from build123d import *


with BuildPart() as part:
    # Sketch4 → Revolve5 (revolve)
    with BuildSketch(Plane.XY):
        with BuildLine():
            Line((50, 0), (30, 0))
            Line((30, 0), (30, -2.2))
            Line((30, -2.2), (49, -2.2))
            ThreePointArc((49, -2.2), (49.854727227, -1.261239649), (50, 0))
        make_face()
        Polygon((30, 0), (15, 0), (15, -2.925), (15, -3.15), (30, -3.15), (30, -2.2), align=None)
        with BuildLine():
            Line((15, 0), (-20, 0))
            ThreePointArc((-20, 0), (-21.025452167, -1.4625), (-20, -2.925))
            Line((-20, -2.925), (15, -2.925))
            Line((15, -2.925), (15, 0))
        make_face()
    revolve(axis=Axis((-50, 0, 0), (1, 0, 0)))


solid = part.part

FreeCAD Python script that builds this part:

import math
import FreeCAD as App
import Part
import Sketcher

doc = App.newDocument("Part")
body = doc.addObject("PartDesign::Body", "Body")

sketch1 = body.newObject("Sketcher::SketchObject", "Sketch")
sketch1.AttachmentSupport = (doc.getObject("XY_Plane"), [""])
sketch1.MapMode = "FlatFace"
sketch1.addGeometry([
    Part.LineSegment(App.Vector(50, 0, 0), App.Vector(-20, 0, 0)),
    Part.ArcOfCircle(Part.Circle(App.Vector(-19.47, -1.46, 0), App.Vector(0, 0, 1), 1.56), math.radians(110), math.radians(250)),
    Part.LineSegment(App.Vector(-20, -2.92, 0), App.Vector(15, -2.92, 0)),
    Part.LineSegment(App.Vector(15, -2.92, 0), App.Vector(15, -3.15, 0)),
    Part.LineSegment(App.Vector(15, -3.15, 0), App.Vector(30, -3.15, 0)),
    Part.LineSegment(App.Vector(30, -3.15, 0), App.Vector(30, -2.2, 0)),
    Part.LineSegment(App.Vector(30, -2.2, 0), App.Vector(49, -2.2, 0)),
    Part.ArcOfCircle(Part.Circle(App.Vector(47.97, -0.41, 0), App.Vector(0, 0, 1), 2.07), math.radians(-60), math.radians(11)),
], False)
sketch1.addConstraint([
    Sketcher.Constraint("Coincident", 0, 2, 1, 1),
    Sketcher.Constraint("Coincident", 1, 2, 2, 1),
    Sketcher.Constraint("Coincident", 2, 2, 3, 1),
    Sketcher.Constraint("Coincident", 3, 2, 4, 1),
    Sketcher.Constraint("Coincident", 4, 2, 5, 1),
    Sketcher.Constraint("Coincident", 5, 2, 6, 1),
    Sketcher.Constraint("Coincident", 6, 2, 7, 1),
    Sketcher.Constraint("Coincident", 7, 2, 0, 1),
    Sketcher.Constraint("Horizontal", 0),
    Sketcher.Constraint("Horizontal", 2),
    Sketcher.Constraint("Vertical", 3),
    Sketcher.Constraint("Horizontal", 4),
    Sketcher.Constraint("Vertical", 5),
    Sketcher.Constraint("Horizontal", 6),
    Sketcher.Constraint("PointOnObject", 0, 2, -1),
    Sketcher.Constraint("Vertical", 0, 2, 1, 2),
    Sketcher.Constraint("DistanceX", 0, 2, 0, 1, 70.0),
    Sketcher.Constraint("DistanceX", 2, 1, 2, 2, 35.0),
    Sketcher.Constraint("DistanceX", 4, 1, 4, 2, 15.0),
    Sketcher.Constraint("DistanceX", 6, 1, 6, 2, 19.0),
    Sketcher.Constraint("DistanceX", 0, 2, -1, 1, 20.0),
    Sketcher.Constraint("DistanceY", 5, 1, 5, 2, 0.95),
    Sketcher.Constraint("DistanceY", 5, 2, -1, 1, 2.2),
    Sketcher.Constraint("DistanceY", 3, 2, 3, 1, 0.225),
    Sketcher.Constraint("Radius", 1, 1.555635),
    Sketcher.Constraint("Radius", 7, 2.068287),
])
revolution = body.newObject("PartDesign::Revolution", "Revolution")
revolution.Profile = sketch1
revolution.ReferenceAxis = (sketch1, ["H_Axis"])
revolution.Angle = 360

doc.recompute()
